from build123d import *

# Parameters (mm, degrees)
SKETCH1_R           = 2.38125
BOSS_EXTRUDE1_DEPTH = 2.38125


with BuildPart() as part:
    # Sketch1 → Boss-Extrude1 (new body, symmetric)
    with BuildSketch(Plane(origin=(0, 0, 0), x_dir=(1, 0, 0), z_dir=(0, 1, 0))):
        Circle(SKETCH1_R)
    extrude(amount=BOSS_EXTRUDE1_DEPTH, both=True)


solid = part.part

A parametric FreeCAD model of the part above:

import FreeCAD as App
import Part
import Sketcher
Q = App.Units.Quantity

doc = App.newDocument("Part")
body = doc.addObject("PartDesign::Body", "Body")

sketch1 = body.newObject("Sketcher::SketchObject", "Sketch")
sketch1.AttachmentSupport = (doc.getObject("XZ_Plane"), [""])
sketch1.MapMode = "FlatFace"
sketch1.addGeometry(Part.Circle(App.Vector(0, 0, 0), App.Vector(0, 0, 1), 2.4), False)
sketch1.addConstraint(Sketcher.Constraint("Coincident", 0, 3, -1, 1))
sketch1.addConstraint(Sketcher.Constraint("Diameter", 0, Q("0.1875 in")))
pad1 = body.newObject("PartDesign::Pad", "Pad")
pad1.Profile = sketch1
pad1.Length = Q("0.1875 in")
pad1.Midplane = True

doc.recompute()
